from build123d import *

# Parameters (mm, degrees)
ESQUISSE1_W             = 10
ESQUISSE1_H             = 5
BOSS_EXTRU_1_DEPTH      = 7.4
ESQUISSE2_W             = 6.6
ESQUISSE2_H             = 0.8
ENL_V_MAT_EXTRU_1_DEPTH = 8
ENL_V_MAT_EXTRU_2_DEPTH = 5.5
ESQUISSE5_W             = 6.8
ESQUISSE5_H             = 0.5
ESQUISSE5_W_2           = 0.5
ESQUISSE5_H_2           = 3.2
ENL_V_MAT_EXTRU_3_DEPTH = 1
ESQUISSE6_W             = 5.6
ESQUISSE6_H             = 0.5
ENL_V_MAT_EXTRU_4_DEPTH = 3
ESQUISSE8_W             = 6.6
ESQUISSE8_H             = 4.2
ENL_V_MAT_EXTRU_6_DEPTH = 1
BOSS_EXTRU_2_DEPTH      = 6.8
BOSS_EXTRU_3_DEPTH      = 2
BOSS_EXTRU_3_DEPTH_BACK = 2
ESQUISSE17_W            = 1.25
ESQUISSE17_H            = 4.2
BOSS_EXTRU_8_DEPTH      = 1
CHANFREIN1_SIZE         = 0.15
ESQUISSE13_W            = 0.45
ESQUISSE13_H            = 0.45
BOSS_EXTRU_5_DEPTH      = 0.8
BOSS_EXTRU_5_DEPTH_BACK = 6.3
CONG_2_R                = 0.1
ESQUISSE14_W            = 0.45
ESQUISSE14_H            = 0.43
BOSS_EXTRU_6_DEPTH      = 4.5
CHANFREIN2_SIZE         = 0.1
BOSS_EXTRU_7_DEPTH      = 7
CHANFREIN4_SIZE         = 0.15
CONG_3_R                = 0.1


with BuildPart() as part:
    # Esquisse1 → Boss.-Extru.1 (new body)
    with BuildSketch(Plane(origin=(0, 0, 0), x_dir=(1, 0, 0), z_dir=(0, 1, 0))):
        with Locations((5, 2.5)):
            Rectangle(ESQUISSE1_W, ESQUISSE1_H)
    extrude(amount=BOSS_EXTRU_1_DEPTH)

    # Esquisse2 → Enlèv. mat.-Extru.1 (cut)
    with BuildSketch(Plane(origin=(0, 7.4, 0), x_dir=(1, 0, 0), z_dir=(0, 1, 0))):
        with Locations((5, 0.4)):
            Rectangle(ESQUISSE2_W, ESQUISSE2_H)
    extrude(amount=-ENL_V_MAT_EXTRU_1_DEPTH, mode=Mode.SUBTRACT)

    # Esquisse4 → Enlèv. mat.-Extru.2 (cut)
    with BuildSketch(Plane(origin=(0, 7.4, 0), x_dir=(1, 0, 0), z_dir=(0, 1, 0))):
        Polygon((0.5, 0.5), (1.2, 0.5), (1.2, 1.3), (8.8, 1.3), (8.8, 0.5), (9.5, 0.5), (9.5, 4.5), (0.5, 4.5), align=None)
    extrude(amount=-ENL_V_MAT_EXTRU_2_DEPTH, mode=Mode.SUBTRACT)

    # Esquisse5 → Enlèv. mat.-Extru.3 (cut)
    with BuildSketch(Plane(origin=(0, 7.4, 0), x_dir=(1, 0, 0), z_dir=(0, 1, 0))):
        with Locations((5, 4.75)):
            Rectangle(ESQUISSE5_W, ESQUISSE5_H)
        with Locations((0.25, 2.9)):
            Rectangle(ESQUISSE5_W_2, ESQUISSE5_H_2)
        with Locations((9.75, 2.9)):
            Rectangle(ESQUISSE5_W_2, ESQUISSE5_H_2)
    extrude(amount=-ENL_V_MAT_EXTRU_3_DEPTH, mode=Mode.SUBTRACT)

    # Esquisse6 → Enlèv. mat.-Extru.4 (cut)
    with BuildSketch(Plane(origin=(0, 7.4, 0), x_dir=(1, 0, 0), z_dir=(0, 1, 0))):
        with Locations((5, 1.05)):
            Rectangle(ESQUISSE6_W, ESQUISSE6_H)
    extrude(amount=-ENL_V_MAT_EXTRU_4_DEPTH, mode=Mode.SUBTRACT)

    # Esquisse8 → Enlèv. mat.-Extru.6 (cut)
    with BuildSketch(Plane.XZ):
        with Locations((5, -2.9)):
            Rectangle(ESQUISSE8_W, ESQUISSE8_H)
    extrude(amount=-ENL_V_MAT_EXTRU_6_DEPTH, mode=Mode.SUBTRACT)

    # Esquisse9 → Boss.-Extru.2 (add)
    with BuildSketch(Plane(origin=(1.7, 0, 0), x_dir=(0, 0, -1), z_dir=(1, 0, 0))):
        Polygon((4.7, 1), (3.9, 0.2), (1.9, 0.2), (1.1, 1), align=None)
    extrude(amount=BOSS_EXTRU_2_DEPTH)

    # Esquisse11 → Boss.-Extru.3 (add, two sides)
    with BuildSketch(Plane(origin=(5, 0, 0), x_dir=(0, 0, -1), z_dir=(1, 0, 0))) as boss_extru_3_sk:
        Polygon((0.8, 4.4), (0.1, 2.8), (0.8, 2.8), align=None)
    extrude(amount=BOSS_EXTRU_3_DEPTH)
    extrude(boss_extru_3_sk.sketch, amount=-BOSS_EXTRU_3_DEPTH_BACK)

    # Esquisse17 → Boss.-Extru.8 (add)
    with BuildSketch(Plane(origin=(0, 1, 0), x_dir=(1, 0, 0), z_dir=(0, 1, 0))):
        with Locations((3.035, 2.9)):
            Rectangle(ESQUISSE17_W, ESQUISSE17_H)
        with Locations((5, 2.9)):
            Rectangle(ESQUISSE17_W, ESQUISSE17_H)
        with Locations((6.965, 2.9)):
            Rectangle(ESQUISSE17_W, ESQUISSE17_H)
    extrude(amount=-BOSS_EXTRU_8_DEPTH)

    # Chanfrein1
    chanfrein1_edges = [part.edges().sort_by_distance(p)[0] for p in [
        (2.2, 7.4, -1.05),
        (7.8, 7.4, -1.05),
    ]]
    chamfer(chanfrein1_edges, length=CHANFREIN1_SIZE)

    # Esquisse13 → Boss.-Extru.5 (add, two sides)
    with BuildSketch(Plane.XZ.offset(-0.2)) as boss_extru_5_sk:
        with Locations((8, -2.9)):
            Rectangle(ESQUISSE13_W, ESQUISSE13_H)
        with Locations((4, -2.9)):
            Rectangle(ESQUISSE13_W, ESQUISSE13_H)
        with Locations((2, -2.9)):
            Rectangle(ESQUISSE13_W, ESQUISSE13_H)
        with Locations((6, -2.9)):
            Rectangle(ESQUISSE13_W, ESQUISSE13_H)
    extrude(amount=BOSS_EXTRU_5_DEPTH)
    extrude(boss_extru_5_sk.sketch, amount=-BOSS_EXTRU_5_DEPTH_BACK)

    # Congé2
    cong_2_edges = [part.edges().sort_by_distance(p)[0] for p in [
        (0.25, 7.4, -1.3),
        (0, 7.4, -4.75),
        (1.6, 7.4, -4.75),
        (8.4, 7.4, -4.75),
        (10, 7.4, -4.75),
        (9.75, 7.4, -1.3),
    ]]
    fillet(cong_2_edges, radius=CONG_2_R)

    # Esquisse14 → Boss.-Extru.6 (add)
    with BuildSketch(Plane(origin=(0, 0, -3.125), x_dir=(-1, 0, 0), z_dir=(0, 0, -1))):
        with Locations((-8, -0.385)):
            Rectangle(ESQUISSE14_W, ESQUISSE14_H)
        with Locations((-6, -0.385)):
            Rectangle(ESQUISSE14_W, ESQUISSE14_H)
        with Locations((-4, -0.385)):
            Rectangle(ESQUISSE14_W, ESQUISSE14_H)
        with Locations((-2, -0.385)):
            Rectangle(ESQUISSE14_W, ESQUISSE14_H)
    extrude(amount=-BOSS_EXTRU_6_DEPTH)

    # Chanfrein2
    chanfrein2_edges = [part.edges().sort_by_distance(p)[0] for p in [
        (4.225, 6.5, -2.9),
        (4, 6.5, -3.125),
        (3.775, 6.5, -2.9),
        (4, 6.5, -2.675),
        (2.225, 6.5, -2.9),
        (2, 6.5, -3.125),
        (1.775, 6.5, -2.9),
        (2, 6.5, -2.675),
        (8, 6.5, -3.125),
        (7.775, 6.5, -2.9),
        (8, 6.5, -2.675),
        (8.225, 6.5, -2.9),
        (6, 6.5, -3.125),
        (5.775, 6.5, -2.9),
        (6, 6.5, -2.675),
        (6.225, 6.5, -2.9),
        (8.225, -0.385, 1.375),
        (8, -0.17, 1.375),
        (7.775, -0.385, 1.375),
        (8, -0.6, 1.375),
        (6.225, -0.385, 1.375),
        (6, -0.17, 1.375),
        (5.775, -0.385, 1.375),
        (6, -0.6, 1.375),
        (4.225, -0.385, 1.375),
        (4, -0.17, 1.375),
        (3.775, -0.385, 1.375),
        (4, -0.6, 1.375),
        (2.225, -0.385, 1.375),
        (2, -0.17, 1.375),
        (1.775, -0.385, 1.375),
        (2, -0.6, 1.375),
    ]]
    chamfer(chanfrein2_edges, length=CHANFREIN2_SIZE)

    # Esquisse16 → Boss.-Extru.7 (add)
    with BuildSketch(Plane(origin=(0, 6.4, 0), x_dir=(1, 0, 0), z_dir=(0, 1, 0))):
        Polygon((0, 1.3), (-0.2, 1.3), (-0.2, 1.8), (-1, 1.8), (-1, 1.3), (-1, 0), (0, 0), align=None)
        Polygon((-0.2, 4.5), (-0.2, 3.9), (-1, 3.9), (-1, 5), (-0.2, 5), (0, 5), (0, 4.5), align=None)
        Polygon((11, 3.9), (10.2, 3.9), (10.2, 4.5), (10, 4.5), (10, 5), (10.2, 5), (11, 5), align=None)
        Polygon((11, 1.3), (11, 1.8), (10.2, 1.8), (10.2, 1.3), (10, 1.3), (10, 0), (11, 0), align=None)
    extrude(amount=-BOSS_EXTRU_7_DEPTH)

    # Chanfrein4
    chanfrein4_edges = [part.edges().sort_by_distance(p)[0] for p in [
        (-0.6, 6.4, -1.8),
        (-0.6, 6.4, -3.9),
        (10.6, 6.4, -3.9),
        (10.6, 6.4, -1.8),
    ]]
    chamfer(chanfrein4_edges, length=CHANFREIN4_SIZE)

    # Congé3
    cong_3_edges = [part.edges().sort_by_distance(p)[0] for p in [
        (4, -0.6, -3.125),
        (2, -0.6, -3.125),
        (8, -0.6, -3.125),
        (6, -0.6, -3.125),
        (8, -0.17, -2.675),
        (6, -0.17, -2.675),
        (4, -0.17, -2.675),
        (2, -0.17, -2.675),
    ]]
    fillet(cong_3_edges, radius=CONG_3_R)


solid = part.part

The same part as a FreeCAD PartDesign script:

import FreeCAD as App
import Part
import Sketcher

V = App.Vector
Q = App.Units.Quantity


def edges_at(feature, points):
    """Names of the edges that pass closest to the given points."""
    edges = feature.Shape.Edges
    near = lambda p: min(range(len(edges)), key=lambda i: edges[i].distToShape(Part.Vertex(*p))[0])
    return sorted({f"Edge{near(p) + 1}" for p in points})


def add_polygon(sketch, points):
    """Adds a closed chain of lines whose ends are joined by coincident constraints."""
    first, n = sketch.GeometryCount, len(points)
    for a, b in zip(points, points[1:] + points[:1]):
        sketch.addGeometry(Part.LineSegment(App.Vector(*a, 0), App.Vector(*b, 0)), False)
    for i in range(n):
        sketch.addConstraint(Sketcher.Constraint("Coincident", first + i, 2, first + (i + 1) % n, 1))

doc = App.newDocument("Part")
params = doc.addObject("Spreadsheet::Sheet", "Params")
for row, (alias, value) in enumerate([
    ("sketch1_width", "10 mm"),
    ("sketch1_height", "5 mm"),
    ("pad1_length", "7.4 mm"),
    ("sketch2_width", "6.6 mm"),
    ("sketch2_height", "0.8 mm"),
    ("pocket1_length", "8 mm"),
    ("sketch3_width", "9 mm"),
    ("sketch3_height", "4 mm"),
    ("sketch3_width2", "0.7 mm"),
    ("sketch3_height2", "0.8 mm"),
    ("pocket2_length", "5.5 mm"),
    ("sketch4_width", "6.8 mm"),
    ("sketch4_width2", "0.5 mm"),
    ("sketch4_height", "3.2 mm"),
    ("pocket3_length", "1 mm"),
    ("sketch5_width", "5.6 mm"),
    ("sketch5_height", "0.5 mm"),
    ("pocket4_length", "3 mm"),
    ("sketch6_width", "6.6 mm"),
    ("sketch6_height", "4.2 mm"),
    ("pocket5_length", "1 mm"),
    ("sketch7_height", "2 mm"),
    ("sketch7_height2", "3.6 mm"),
    ("pad2_length", "6.8 mm"),
    ("sketch8_width", "1.6 mm"),
    ("sketch8_height", "0.7 mm"),
    ("pad3_length", "2 mm"),
    ("pad3_length2", "2 mm"),
    ("sketch9_height", "4.2 mm"),
    ("sketch9_width", "1.25 mm"),
    ("pad4_length", "1 mm"),
    ("chamfer_size", "0.15 mm"),
    ("sketch10_width", "0.45 mm"),
    ("pad5_length", "0.8 mm"),
    ("pad5_length2", "6.3 mm"),
    ("fillet_radius", "0.1 mm"),
    ("sketch11_width", "0.45 mm"),
    ("sketch11_height", "0.43 mm"),
    ("pad6_length", "4.5 mm"),
    ("chamfer2_size", "0.1 mm"),
    ("sketch12_width", "1 mm"),
    ("sketch12_width2", "0.2 mm"),
    ("sketch12_height", "0.5 mm"),
    ("sketch12_height2", "1.8 mm"),
    ("sketch12_height3", "0.6 mm"),
    ("pad7_length", "7 mm"),
    ("chamfer3_size", "0.15 mm"),
    ("fillet2_radius", "0.1 mm"),
], start=1):
    params.set(f"A{row}", alias)
    params.set(f"B{row}", "=" + value)
    params.setAlias(f"B{row}", alias)

body = doc.addObject("PartDesign::Body", "Body")

# Sketch on XZ plane
sketch1 = body.newObject("Sketcher::SketchObject", "Sketch")
sketch1.AttachmentSupport = (doc.getObject("XZ_Plane"), [""])
sketch1.MapMode = "FlatFace"
add_polygon(sketch1, [(0, -5), (0, 0), (10, 0), (10, -5)])  # lines 0-3
sketch1.addConstraint([
    Sketcher.Constraint("Vertical", 0),
    Sketcher.Constraint("Horizontal", 1),
    Sketcher.Constraint("Vertical", 2),
    Sketcher.Constraint("Horizontal", 3),
    Sketcher.Constraint("Coincident", 0, 2, -1, 1),
    Sketcher.Constraint("DistanceX", 1, 1, 1, 2, Q("10 mm")),
    Sketcher.Constraint("DistanceY", 0, 1, 0, 2, Q("5 mm")),
])
sketch1.setExpression("Constraints[9]", "Params.sketch1_width")
sketch1.setExpression("Constraints[10]", "Params.sketch1_height")
pad1 = body.newObject("PartDesign::Pad", "Pad")
pad1.Profile = sketch1
pad1.setExpression("Length", "Params.pad1_length")
pad1.Reversed = True

# Sketch on XZ plane
sketch2 = body.newObject("Sketcher::SketchObject", "Sketch001")
sketch2.AttachmentSupport = (doc.getObject("XZ_Plane"), [""])
sketch2.MapMode = "FlatFace"
sketch2.AttachmentOffset = App.Placement(V(0, 0, -7.4), App.Rotation())
add_polygon(sketch2, [(1.7, -0.8), (1.7, 0), (8.3, 0), (8.3, -0.8)])  # lines 0-3
sketch2.addConstraint([
    Sketcher.Constraint("Vertical", 0),
    Sketcher.Constraint("Horizontal", 1),
    Sketcher.Constraint("Vertical", 2),
    Sketcher.Constraint("Horizontal", 3),
    Sketcher.Constraint("PointOnObject", 0, 2, -1),
    Sketcher.Constraint("DistanceX", 1, 1, 1, 2, Q("6.6 mm")),
    Sketcher.Constraint("DistanceY", 0, 1, 0, 2, Q("0.8 mm")),
    Sketcher.Constraint("DistanceX", -1, 1, 0, 2, Q("1.7 mm")),
])
sketch2.setExpression("Constraints[9]", "Params.sketch2_width")
sketch2.setExpression("Constraints[10]", "Params.sketch2_height")
pocket1 = body.newObject("PartDesign::Pocket", "Pocket")
pocket1.Profile = sketch2
pocket1.setExpression("Length", "Params.pocket1_length")
pocket1.Reversed = True

# Sketch on XZ plane
sketch3 = body.newObject("Sketcher::SketchObject", "Sketch002")
sketch3.AttachmentSupport = (doc.getObject("XZ_Plane"), [""])
sketch3.MapMode = "FlatFace"
sketch3.AttachmentOffset = App.Placement(V(0, 0, -7.4), App.Rotation())
add_polygon(sketch3, [(0.5, -0.5), (1.2, -0.5), (1.2, -1.3), (8.8, -1.3), (8.8, -0.5), (9.5, -0.5), (9.5, -4.5), (0.5, -4.5)])  # lines 0-7
sketch3.addConstraint([
    Sketcher.Constraint("Horizontal", 0),
    Sketcher.Constraint("Vertical", 1),
    Sketcher.Constraint("Horizontal", 2),
    Sketcher.Constraint("Vertical", 3),
    Sketcher.Constraint("Horizontal", 4),
    Sketcher.Constraint("Vertical", 5),
    Sketcher.Constraint("Horizontal", 6),
    Sketcher.Constraint("Vertical", 7),
    Sketcher.Constraint("Horizontal", 0, 2, 3, 2),
    Sketcher.Constraint("Equal", 0, 4),
    Sketcher.Constraint("DistanceX", 6, 2, 6, 1, Q("9 mm")),
    Sketcher.Constraint("DistanceY", 5, 2, 5, 1, Q("4 mm")),
    Sketcher.Constraint("DistanceX", 0, 1, 0, 2, Q("0.7 mm")),
    Sketcher.Constraint("DistanceY", 1, 2, 1, 1, Q("0.8 mm")),
    Sketcher.Constraint("DistanceX", -1, 1, 0, 2, Q("1.2 mm")),
    Sketcher.Constraint("DistanceY", 0, 2, -1, 1, Q("0.5 mm")),
])
sketch3.setExpression("Constraints[18]", "Params.sketch3_width")
sketch3.setExpression("Constraints[19]", "Params.sketch3_height")
sketch3.setExpression("Constraints[20]", "Params.sketch3_width2")
sketch3.setExpression("Constraints[21]", "Params.sketch3_height2")
pocket2 = body.newObject("PartDesign::Pocket", "Pocket001")
pocket2.Profile = sketch3
pocket2.setExpression("Length", "Params.pocket2_length")
pocket2.Reversed = True

# Sketch on XZ plane
sketch4 = body.newObject("Sketcher::SketchObject", "Sketch003")
sketch4.AttachmentSupport = (doc.getObject("XZ_Plane"), [""])
sketch4.MapMode = "FlatFace"
sketch4.AttachmentOffset = App.Placement(V(0, 0, -7.4), App.Rotation())
add_polygon(sketch4, [(1.6, -5), (1.6, -4.5), (8.4, -4.5), (8.4, -5)])  # lines 0-3
add_polygon(sketch4, [(0, -4.5), (0, -1.3), (0.5, -1.3), (0.5, -4.5)])  # lines 4-7
add_polygon(sketch4, [(9.5, -4.5), (9.5, -1.3), (10, -1.3), (10, -4.5)])  # lines 8-11
sketch4.addConstraint([
    Sketcher.Constraint("Vertical", 0),
    Sketcher.Constraint("Horizontal", 1),
    Sketcher.Constraint("Vertical", 2),
    Sketcher.Constraint("Horizontal", 3),
    Sketcher.Constraint("Vertical", 4),
    Sketcher.Constraint("Horizontal", 5),
    Sketcher.Constraint("Vertical", 6),
    Sketcher.Constraint("Horizontal", 7),
    Sketcher.Constraint("Vertical", 8),
    Sketcher.Constraint("Horizontal", 9),
    Sketcher.Constraint("Vertical", 10),
    Sketcher.Constraint("Horizontal", 11),
    Sketcher.Constraint("PointOnObject", 4, 2, -2),
    Sketcher.Constraint("Horizontal", 1, 2, 6, 2),
    Sketcher.Constraint("Horizontal", 5, 2, 8, 2),
    Sketcher.Constraint("Horizontal", 7, 2, 10, 2),
    Sketcher.Constraint("Equal", 7, 9),
    Sketcher.Constraint("Equal", 11, 0),
    Sketcher.Constraint("DistanceX", 1, 1, 1, 2, Q("6.8 mm")),
    Sketcher.Constraint("DistanceX", 5, 1, 5, 2, Q("0.5 mm")),
    Sketcher.Constraint("DistanceY", 4, 1, 4, 2, Q("3.2 mm")),
    Sketcher.Constraint("DistanceY", 2, 2, -1, 1, Q("5 mm")),
    Sketcher.Constraint("DistanceX", -1, 1, 9, 2, Q("10 mm")),
    Sketcher.Constraint("DistanceX", -1, 1, 0, 2, Q("1.6 mm")),
])
sketch4.setExpression("Constraints[30]", "Params.sketch4_width")
sketch4.setExpression("Constraints[31]", "Params.sketch4_width2")
sketch4.setExpression("Constraints[32]", "Params.sketch4_height")
pocket3 = body.newObject("PartDesign::Pocket", "Pocket002")
pocket3.Profile = sketch4
pocket3.setExpression("Length", "Params.pocket3_length")
pocket3.Reversed = True

# Sketch on XZ plane
sketch5 = body.newObject("Sketcher::SketchObject", "Sketch004")
sketch5.AttachmentSupport = (doc.getObject("XZ_Plane"), [""])
sketch5.MapMode = "FlatFace"
sketch5.AttachmentOffset = App.Placement(V(0, 0, -7.4), App.Rotation())
add_polygon(sketch5, [(2.2, -1.3), (2.2, -0.8), (7.8, -0.8), (7.8, -1.3)])  # lines 0-3
sketch5.addConstraint([
    Sketcher.Constraint("Vertical", 0),
    Sketcher.Constraint("Horizontal", 1),
    Sketcher.Constraint("Vertical", 2),
    Sketcher.Constraint("Horizontal", 3),
    Sketcher.Constraint("DistanceX", 1, 1, 1, 2, Q("5.6 mm")),
    Sketcher.Constraint("DistanceY", 0, 1, 0, 2, Q("0.5 mm")),
    Sketcher.Constraint("DistanceX", -1, 1, 0, 2, Q("2.2 mm")),
    Sketcher.Constraint("DistanceY", 0, 2, -1, 1, Q("0.8 mm")),
])
sketch5.setExpression("Constraints[8]", "Params.sketch5_width")
sketch5.setExpression("Constraints[9]", "Params.sketch5_height")
pocket4 = body.newObject("PartDesign::Pocket", "Pocket003")
pocket4.Profile = sketch5
pocket4.setExpression("Length", "Params.pocket4_length")
pocket4.Reversed = True

# Sketch on XZ plane
sketch6 = body.newObject("Sketcher::SketchObject", "Sketch005")
sketch6.AttachmentSupport = (doc.getObject("XZ_Plane"), [""])
sketch6.MapMode = "FlatFace"
add_polygon(sketch6, [(1.7, -0.8), (1.7, -5), (8.3, -5), (8.3, -0.8)])  # lines 0-3
sketch6.addConstraint([
    Sketcher.Constraint("Vertical", 0),
    Sketcher.Constraint("Horizontal", 1),
    Sketcher.Constraint("Vertical", 2),
    Sketcher.Constraint("Horizontal", 3),
    Sketcher.Constraint("DistanceX", 1, 1, 1, 2, Q("6.6 mm")),
    Sketcher.Constraint("DistanceY", 0, 2, 0, 1, Q("4.2 mm")),
    Sketcher.Constraint("DistanceY", 0, 2, -1, 1, Q("5 mm")),
    Sketcher.Constraint("DistanceX", -1, 1, 0, 2, Q("1.7 mm")),
])
sketch6.setExpression("Constraints[8]", "Params.sketch6_width")
sketch6.setExpression("Constraints[9]", "Params.sketch6_height")
pocket5 = body.newObject("PartDesign::Pocket", "Pocket004")
pocket5.Profile = sketch6
pocket5.setExpression("Length", "Params.pocket5_length")

# Sketch on YZ plane
sketch7 = body.newObject("Sketcher::SketchObject", "Sketch006")
sketch7.AttachmentSupport = (doc.getObject("YZ_Plane"), [""])
sketch7.MapMode = "FlatFace"
sketch7.AttachmentOffset = App.Placement(V(0, 0, 1.7), App.Rotation())
add_polygon(sketch7, [(0.2, -3.9), (1, -4.7), (1, -1.1), (0.2, -1.9)])  # lines 0-3
sketch7.addConstraint([
    Sketcher.Constraint("Vertical", 1),
    Sketcher.Constraint("Vertical", 3),
    Sketcher.Constraint("Perpendicular", 0, 2),
    Sketcher.Constraint("Equal", 0, 2),
    Sketcher.Constraint("DistanceY", 3, 2, 3, 1, Q("2 mm")),
    Sketcher.Constraint("DistanceY", 1, 1, 1, 2, Q("3.6 mm")),
    Sketcher.Constraint("DistanceX", -1, 1, 0, 2, Q("1 mm")),
    Sketcher.Constraint("DistanceY", 0, 2, -1, 1, Q("4.7 mm")),
])
sketch7.setExpression("Constraints[8]", "Params.sketch7_height")
sketch7.setExpression("Constraints[9]", "Params.sketch7_height2")
pad2 = body.newObject("PartDesign::Pad", "Pad001")
pad2.Profile = sketch7
pad2.setExpression("Length", "Params.pad2_length")

# Sketch on YZ plane
sketch8 = body.newObject("Sketcher::SketchObject", "Sketch007")
sketch8.AttachmentSupport = (doc.getObject("YZ_Plane"), [""])
sketch8.MapMode = "FlatFace"
sketch8.AttachmentOffset = App.Placement(V(0, 0, 5), App.Rotation())
add_polygon(sketch8, [(4.4, -0.8), (2.8, -0.1), (2.8, -0.8)])  # lines 0-2
sketch8.addConstraint([
    Sketcher.Constraint("Vertical", 1),
    Sketcher.Constraint("Horizontal", 2),
    Sketcher.Constraint("DistanceX", 2, 1, 2, 2, Q("1.6 mm")),
    Sketcher.Constraint("DistanceY", 1, 2, 1, 1, Q("0.7 mm")),
    Sketcher.Constraint("DistanceX", -1, 1, 0, 2, Q("2.8 mm")),
    Sketcher.Constraint("DistanceY", 0, 2, -1, 1, Q("0.1 mm")),
])
sketch8.setExpression("Constraints[5]", "Params.sketch8_width")
sketch8.setExpression("Constraints[6]", "Params.sketch8_height")
pad3 = body.newObject("PartDesign::Pad", "Pad002")
pad3.Profile = sketch8
pad3.Type = "TwoLengths"
pad3.setExpression("Length", "Params.pad3_length")
pad3.setExpression("Length2", "Params.pad3_length2")

# Sketch on XZ plane
sketch9 = body.newObject("Sketcher::SketchObject", "Sketch008")
sketch9.AttachmentSupport = (doc.getObject("XZ_Plane"), [""])
sketch9.MapMode = "FlatFace"
sketch9.AttachmentOffset = App.Placement(V(0, 0, -1), App.Rotation())
add_polygon(sketch9, [(2.4, -5), (2.4, -0.8), (3.7, -0.8), (3.7, -5)])  # lines 0-3
add_polygon(sketch9, [(4.4, -5), (4.4, -0.8), (5.6, -0.8), (5.6, -5)])  # lines 4-7
add_polygon(sketch9, [(6.3, -5), (6.3, -0.8), (7.6, -0.8), (7.6, -5)])  # lines 8-11
sketch9.addConstraint([
    Sketcher.Constraint("Vertical", 0),
    Sketcher.Constraint("Horizontal", 1),
    Sketcher.Constraint("Vertical", 2),
    Sketcher.Constraint("Horizontal", 3),
    Sketcher.Constraint("Vertical", 4),
    Sketcher.Constraint("Horizontal", 5),
    Sketcher.Constraint("Vertical", 6),
    Sketcher.Constraint("Horizontal", 7),
    Sketcher.Constraint("Vertical", 8),
    Sketcher.Constraint("Horizontal", 9),
    Sketcher.Constraint("Vertical", 10),
    Sketcher.Constraint("Horizontal", 11),
    Sketcher.Constraint("Horizontal", 1, 2, 4, 2),
    Sketcher.Constraint("Horizontal", 3, 2, 6, 2),
    Sketcher.Constraint("Horizontal", 5, 2, 8, 2),
    Sketcher.Constraint("Horizontal", 7, 2, 10, 2),
    Sketcher.Constraint("Equal", 3, 5),
    Sketcher.Constraint("Equal", 7, 9),
    Sketcher.Constraint("DistanceY", 0, 1, 0, 2, Q("4.2 mm")),
    Sketcher.Constraint("DistanceY", 2, 2, -1, 1, Q("5 mm")),
    Sketcher.Constraint("DistanceX", 1, 1, 1, 2, Q("1.25 mm")),
    Sketcher.Constraint("DistanceX", -1, 1, 0, 2, Q("2.41 mm")),
    Sketcher.Constraint("DistanceX", -1, 1, 8, 2, Q("6.34 mm")),
    Sketcher.Constraint("DistanceX", -1, 1, 4, 2, Q("4.375 mm")),
])
sketch9.setExpression("Constraints[30]", "Params.sketch9_height")
sketch9.setExpression("Constraints[32]", "Params.sketch9_width")
pad4 = body.newObject("PartDesign::Pad", "Pad003")
pad4.Profile = sketch9
pad4.setExpression("Length", "Params.pad4_length")
doc.recompute()

chamfer = body.newObject("PartDesign::Chamfer", "Chamfer")
chamfer.Base = (pad4, edges_at(pad4, [(2.2, 7.4, -1.05), (7.8, 7.4, -1.05)]))
chamfer.setExpression("Size", "Params.chamfer_size")

# Sketch on XZ plane
sketch10 = body.newObject("Sketcher::SketchObject", "Sketch009")
sketch10.AttachmentSupport = (doc.getObject("XZ_Plane"), [""])
sketch10.MapMode = "FlatFace"
sketch10.AttachmentOffset = App.Placement(V(0, 0, -0.2), App.Rotation())
add_polygon(sketch10, [(7.78, -2.67), (7.78, -3.12), (8.22, -3.12), (8.22, -2.67)])  # lines 0-3
add_polygon(sketch10, [(3.77, -2.67), (3.77, -3.12), (4.22, -3.12), (4.22, -2.67)])  # lines 4-7
add_polygon(sketch10, [(1.77, -2.67), (1.77, -3.12), (2.23, -3.12), (2.23, -2.67)])  # lines 8-11
add_polygon(sketch10, [(5.78, -2.67), (5.78, -3.12), (6.22, -3.12), (6.22, -2.67)])  # lines 12-15
sketch10.addConstraint([
    Sketcher.Constraint("Vertical", 0),
    Sketcher.Constraint("Horizontal", 1),
    Sketcher.Constraint("Vertical", 2),
    Sketcher.Constraint("Horizontal", 3),
    Sketcher.Constraint("Vertical", 4),
    Sketcher.Constraint("Horizontal", 5),
    Sketcher.Constraint("Vertical", 6),
    Sketcher.Constraint("Horizontal", 7),
    Sketcher.Constraint("Vertical", 8),
    Sketcher.Constraint("Horizontal", 9),
    Sketcher.Constraint("Vertical", 10),
    Sketcher.Constraint("Horizontal", 11),
    Sketcher.Constraint("Vertical", 12),
    Sketcher.Constraint("Horizontal", 13),
    Sketcher.Constraint("Vertical", 14),
    Sketcher.Constraint("Horizontal", 15),
    Sketcher.Constraint("Horizontal", 1, 2, 4, 2),
    Sketcher.Constraint("Horizontal", 3, 2, 6, 2),
    Sketcher.Constraint("Horizontal", 5, 2, 8, 2),
    Sketcher.Constraint("Horizontal", 7, 2, 10, 2),
    Sketcher.Constraint("Horizontal", 9, 2, 12, 2),
    Sketcher.Constraint("Horizontal", 11, 2, 14, 2),
    Sketcher.Constraint("Equal", 3, 5),
    Sketcher.Constraint("Equal", 7, 9),
    Sketcher.Constraint("Equal", 11, 13),
    Sketcher.Constraint("Equal", 15, 0),
    Sketcher.Constraint("DistanceX", 4, 2, 0, 2, Q("4 mm")),
    Sketcher.Constraint("DistanceX", 8, 2, 4, 2, Q("2 mm")),
    Sketcher.Constraint("DistanceX", 12, 2, 0, 2, Q("2 mm")),
    Sketcher.Constraint("DistanceX", 1, 1, 1, 2, Q("0.45 mm")),
    Sketcher.Constraint("DistanceX", -1, 1, 0, 2, Q("7.775 mm")),
    Sketcher.Constraint("DistanceY", 0, 2, -1, 1, Q("3.125 mm")),
])
sketch10.setExpression("Constraints[45]", "Params.sketch10_width")
pad5 = body.newObject("PartDesign::Pad", "Pad004")
pad5.Profile = sketch10
pad5.Type = "TwoLengths"
pad5.setExpression("Length", "Params.pad5_length")
pad5.setExpression("Length2", "Params.pad5_length2")
doc.recompute()

fillet = body.newObject("PartDesign::Fillet", "Fillet")
fillet.Base = (pad5, edges_at(pad5, [
    (0.25, 7.4, -1.3),
    (0, 7.4, -4.75),
    (1.6, 7.4, -4.75),
    (8.4, 7.4, -4.75),
    (10, 7.4, -4.75),
    (9.75, 7.4, -1.3),
]))
fillet.setExpression("Radius", "Params.fillet_radius")

# Sketch on XY plane
sketch11 = body.newObject("Sketcher::SketchObject", "Sketch010")
sketch11.AttachmentSupport = (doc.getObject("XY_Plane"), [""])
sketch11.MapMode = "FlatFace"
sketch11.AttachmentOffset = App.Placement(V(0, 0, -3.125), App.Rotation())
add_polygon(sketch11, [(8.22, -0.17), (8.22, -0.6), (7.78, -0.6), (7.78, -0.17)])  # lines 0-3
add_polygon(sketch11, [(6.22, -0.17), (6.22, -0.6), (5.78, -0.6), (5.78, -0.17)])  # lines 4-7
add_polygon(sketch11, [(4.22, -0.17), (4.22, -0.6), (3.77, -0.6), (3.77, -0.17)])  # lines 8-11
add_polygon(sketch11, [(2.23, -0.17), (2.23, -0.6), (1.77, -0.6), (1.77, -0.17)])  # lines 12-15
sketch11.addConstraint([
    Sketcher.Constraint("Vertical", 0),
    Sketcher.Constraint("Horizontal", 1),
    Sketcher.Constraint("Vertical", 2),
    Sketcher.Constraint("Horizontal", 3),
    Sketcher.Constraint("Vertical", 4),
    Sketcher.Constraint("Horizontal", 5),
    Sketcher.Constraint("Vertical", 6),
    Sketcher.Constraint("Horizontal", 7),
    Sketcher.Constraint("Vertical", 8),
    Sketcher.Constraint("Horizontal", 9),
    Sketcher.Constraint("Vertical", 10),
    Sketcher.Constraint("Horizontal", 11),
    Sketcher.Constraint("Vertical", 12),
    Sketcher.Constraint("Horizontal", 13),
    Sketcher.Constraint("Vertical", 14),
    Sketcher.Constraint("Horizontal", 15),
    Sketcher.Constraint("Horizontal", 1, 2, 4, 2),
    Sketcher.Constraint("Horizontal", 3, 2, 6, 2),
    Sketcher.Constraint("Horizontal", 5, 2, 8, 2),
    Sketcher.Constraint("Horizontal", 7, 2, 10, 2),
    Sketcher.Constraint("Horizontal", 9, 2, 12, 2),
    Sketcher.Constraint("Horizontal", 11, 2, 14, 2),
    Sketcher.Constraint("Equal", 3, 5),
    Sketcher.Constraint("Equal", 7, 9),
    Sketcher.Constraint("Equal", 11, 13),
    Sketcher.Constraint("DistanceX", 4, 2, 0, 2, Q("2 mm")),
    Sketcher.Constraint("DistanceX", 8, 2, 4, 2, Q("2 mm")),
    Sketcher.Constraint("DistanceX", 12, 2, 8, 2, Q("2 mm")),
    Sketcher.Constraint("DistanceX", 1, 2, 1, 1, Q("0.45 mm")),
    Sketcher.Constraint("DistanceY", 0, 2, 0, 1, Q("0.43 mm")),
    Sketcher.Constraint("DistanceY", 0, 2, -1, 1, Q("0.6 mm")),
    Sketcher.Constraint("DistanceX", -1, 1, 0, 2, Q("8.225 mm")),
])
sketch11.setExpression("Constraints[44]", "Params.sketch11_width")
sketch11.setExpression("Constraints[45]", "Params.sketch11_height")
pad6 = body.newObject("PartDesign::Pad", "Pad005")
pad6.Profile = sketch11
pad6.setExpression("Length", "Params.pad6_length")
doc.recompute()

chamfer2 = body.newObject("PartDesign::Chamfer", "Chamfer001")
chamfer2.Base = (pad6, edges_at(pad6, [
    (4.225, 6.5, -2.9),
    (4, 6.5, -3.125),
    (3.775, 6.5, -2.9),
    (4, 6.5, -2.675),
    (2.225, 6.5, -2.9),
    (2, 6.5, -3.125),
    (1.775, 6.5, -2.9),
    (2, 6.5, -2.675),
    (8, 6.5, -3.125),
    (7.775, 6.5, -2.9),
    (8, 6.5, -2.675),
    (8.225, 6.5, -2.9),
    (6, 6.5, -3.125),
    (5.775, 6.5, -2.9),
    (6, 6.5, -2.675),
    (6.225, 6.5, -2.9),
    (8.225, -0.385, 1.375),
    (8, -0.17, 1.375),
    (7.775, -0.385, 1.375),
    (8, -0.6, 1.375),
    (6.225, -0.385, 1.375),
    (6, -0.17, 1.375),
    (5.775, -0.385, 1.375),
    (6, -0.6, 1.375),
    (4.225, -0.385, 1.375),
    (4, -0.17, 1.375),
    (3.775, -0.385, 1.375),
    (4, -0.6, 1.375),
    (2.225, -0.385, 1.375),
    (2, -0.17, 1.375),
    (1.775, -0.385, 1.375),
    (2, -0.6, 1.375),
]))
chamfer2.setExpression("Size", "Params.chamfer2_size")

# Sketch on XZ plane
sketch12 = body.newObject("Sketcher::SketchObject", "Sketch011")
sketch12.AttachmentSupport = (doc.getObject("XZ_Plane"), [""])
sketch12.MapMode = "FlatFace"
sketch12.AttachmentOffset = App.Placement(V(0, 0, -6.4), App.Rotation())
add_polygon(sketch12, [(0, -1.3), (-0.2, -1.3), (-0.2, -1.8), (-1, -1.8), (-1, 0), (0, 0)])  # lines 0-5
add_polygon(sketch12, [(-0.2, -3.9), (-0.2, -4.5), (0, -4.5), (0, -5), (-1, -5), (-1, -3.9)])  # lines 6-11
add_polygon(sketch12, [(10.2, -3.9), (11, -3.9), (11, -5), (10, -5), (10, -4.5), (10.2, -4.5)])  # lines 12-17
add_polygon(sketch12, [(11, -1.8), (10.2, -1.8), (10.2, -1.3), (10, -1.3), (10, 0), (11, 0)])  # lines 18-23
sketch12.addConstraint([
    Sketcher.Constraint("Horizontal", 0),
    Sketcher.Constraint("Vertical", 1),
    Sketcher.Constraint("Horizontal", 2),
    Sketcher.Constraint("Vertical", 3),
    Sketcher.Constraint("Horizontal", 4),
    Sketcher.Constraint("Vertical", 5),
    Sketcher.Constraint("Vertical", 6),
    Sketcher.Constraint("Horizontal", 7),
    Sketcher.Constraint("Vertical", 8),
    Sketcher.Constraint("Horizontal", 9),
    Sketcher.Constraint("Vertical", 10),
    Sketcher.Constraint("Horizontal", 11),
    Sketcher.Constraint("Horizontal", 12),
    Sketcher.Constraint("Vertical", 13),
    Sketcher.Constraint("Horizontal", 14),
    Sketcher.Constraint("Vertical", 15),
    Sketcher.Constraint("Horizontal", 16),
    Sketcher.Constraint("Vertical", 17),
    Sketcher.Constraint("Horizontal", 18),
    Sketcher.Constraint("Vertical", 19),
    Sketcher.Constraint("Horizontal", 20),
    Sketcher.Constraint("Vertical", 21),
    Sketcher.Constraint("Horizontal", 22),
    Sketcher.Constraint("Vertical", 23),
    Sketcher.Constraint("Coincident", 4, 2, -1, 1),
    Sketcher.Constraint("PointOnObject", 7, 2, -2),
    Sketcher.Constraint("PointOnObject", 21, 2, -1),
    Sketcher.Constraint("Horizontal", 11, 2, 12, 2),
    Sketcher.Constraint("Horizontal", 9, 2, 13, 2),
    Sketcher.Constraint("Horizontal", 7, 2, 15, 2),
    Sketcher.Constraint("Horizontal", 2, 2, 18, 2),
    Sketcher.Constraint("Horizontal", 5, 2, 19, 2),
    Sketcher.Constraint("Vertical", 1, 2, 6, 2),
    Sketcher.Constraint("Vertical", 3, 2, 9, 2),
    Sketcher.Constraint("Vertical", 17, 2, 18, 2),
    Sketcher.Constraint("Vertical", 15, 2, 20, 2),
    Sketcher.Constraint("Vertical", 13, 2, 22, 2),
    Sketcher.Constraint("Equal", 11, 12),
    Sketcher.Constraint("Equal", 9, 14),
    Sketcher.Constraint("Equal", 1, 8),
    Sketcher.Constraint("DistanceX", 4, 1, 4, 2, Q("1 mm")),
    Sketcher.Constraint("DistanceX", 0, 2, 0, 1, Q("0.2 mm")),
    Sketcher.Constraint("DistanceY", 1, 2, 1, 1, Q("0.5 mm")),
    Sketcher.Constraint("DistanceY", 3, 1, 3, 2, Q("1.8 mm")),
    Sketcher.Constraint("DistanceY", 6, 2, 6, 1, Q("0.6 mm")),
    Sketcher.Constraint("DistanceY", 8, 2, -1, 1, Q("5 mm")),
    Sketcher.Constraint("DistanceX", -1, 1, 12, 2, Q("11 mm")),
])
sketch12.setExpression("Constraints[64]", "Params.sketch12_width")
sketch12.setExpression("Constraints[65]", "Params.sketch12_width2")
sketch12.setExpression("Constraints[66]", "Params.sketch12_height")
sketch12.setExpression("Constraints[67]", "Params.sketch12_height2")
sketch12.setExpression("Constraints[68]", "Params.sketch12_height3")
pad7 = body.newObject("PartDesign::Pad", "Pad006")
pad7.Profile = sketch12
pad7.setExpression("Length", "Params.pad7_length")
doc.recompute()

chamfer3 = body.newObject("PartDesign::Chamfer", "Chamfer002")
chamfer3.Base = (pad7, edges_at(pad7, [
    (-0.6, 6.4, -1.8),
    (-0.6, 6.4, -3.9),
    (10.6, 6.4, -3.9),
    (10.6, 6.4, -1.8),
]))
chamfer3.setExpression("Size", "Params.chamfer3_size")
doc.recompute()

fillet2 = body.newObject("PartDesign::Fillet", "Fillet001")
fillet2.Base = (chamfer3, edges_at(chamfer3, [
    (4, -0.6, -3.125),
    (2, -0.6, -3.125),
    (8, -0.6, -3.125),
    (6, -0.6, -3.125),
    (8, -0.17, -2.675),
    (6, -0.17, -2.675),
    (4, -0.17, -2.675),
    (2, -0.17, -2.675),
]))
fillet2.setExpression("Radius", "Params.fillet2_radius")

doc.recompute()
